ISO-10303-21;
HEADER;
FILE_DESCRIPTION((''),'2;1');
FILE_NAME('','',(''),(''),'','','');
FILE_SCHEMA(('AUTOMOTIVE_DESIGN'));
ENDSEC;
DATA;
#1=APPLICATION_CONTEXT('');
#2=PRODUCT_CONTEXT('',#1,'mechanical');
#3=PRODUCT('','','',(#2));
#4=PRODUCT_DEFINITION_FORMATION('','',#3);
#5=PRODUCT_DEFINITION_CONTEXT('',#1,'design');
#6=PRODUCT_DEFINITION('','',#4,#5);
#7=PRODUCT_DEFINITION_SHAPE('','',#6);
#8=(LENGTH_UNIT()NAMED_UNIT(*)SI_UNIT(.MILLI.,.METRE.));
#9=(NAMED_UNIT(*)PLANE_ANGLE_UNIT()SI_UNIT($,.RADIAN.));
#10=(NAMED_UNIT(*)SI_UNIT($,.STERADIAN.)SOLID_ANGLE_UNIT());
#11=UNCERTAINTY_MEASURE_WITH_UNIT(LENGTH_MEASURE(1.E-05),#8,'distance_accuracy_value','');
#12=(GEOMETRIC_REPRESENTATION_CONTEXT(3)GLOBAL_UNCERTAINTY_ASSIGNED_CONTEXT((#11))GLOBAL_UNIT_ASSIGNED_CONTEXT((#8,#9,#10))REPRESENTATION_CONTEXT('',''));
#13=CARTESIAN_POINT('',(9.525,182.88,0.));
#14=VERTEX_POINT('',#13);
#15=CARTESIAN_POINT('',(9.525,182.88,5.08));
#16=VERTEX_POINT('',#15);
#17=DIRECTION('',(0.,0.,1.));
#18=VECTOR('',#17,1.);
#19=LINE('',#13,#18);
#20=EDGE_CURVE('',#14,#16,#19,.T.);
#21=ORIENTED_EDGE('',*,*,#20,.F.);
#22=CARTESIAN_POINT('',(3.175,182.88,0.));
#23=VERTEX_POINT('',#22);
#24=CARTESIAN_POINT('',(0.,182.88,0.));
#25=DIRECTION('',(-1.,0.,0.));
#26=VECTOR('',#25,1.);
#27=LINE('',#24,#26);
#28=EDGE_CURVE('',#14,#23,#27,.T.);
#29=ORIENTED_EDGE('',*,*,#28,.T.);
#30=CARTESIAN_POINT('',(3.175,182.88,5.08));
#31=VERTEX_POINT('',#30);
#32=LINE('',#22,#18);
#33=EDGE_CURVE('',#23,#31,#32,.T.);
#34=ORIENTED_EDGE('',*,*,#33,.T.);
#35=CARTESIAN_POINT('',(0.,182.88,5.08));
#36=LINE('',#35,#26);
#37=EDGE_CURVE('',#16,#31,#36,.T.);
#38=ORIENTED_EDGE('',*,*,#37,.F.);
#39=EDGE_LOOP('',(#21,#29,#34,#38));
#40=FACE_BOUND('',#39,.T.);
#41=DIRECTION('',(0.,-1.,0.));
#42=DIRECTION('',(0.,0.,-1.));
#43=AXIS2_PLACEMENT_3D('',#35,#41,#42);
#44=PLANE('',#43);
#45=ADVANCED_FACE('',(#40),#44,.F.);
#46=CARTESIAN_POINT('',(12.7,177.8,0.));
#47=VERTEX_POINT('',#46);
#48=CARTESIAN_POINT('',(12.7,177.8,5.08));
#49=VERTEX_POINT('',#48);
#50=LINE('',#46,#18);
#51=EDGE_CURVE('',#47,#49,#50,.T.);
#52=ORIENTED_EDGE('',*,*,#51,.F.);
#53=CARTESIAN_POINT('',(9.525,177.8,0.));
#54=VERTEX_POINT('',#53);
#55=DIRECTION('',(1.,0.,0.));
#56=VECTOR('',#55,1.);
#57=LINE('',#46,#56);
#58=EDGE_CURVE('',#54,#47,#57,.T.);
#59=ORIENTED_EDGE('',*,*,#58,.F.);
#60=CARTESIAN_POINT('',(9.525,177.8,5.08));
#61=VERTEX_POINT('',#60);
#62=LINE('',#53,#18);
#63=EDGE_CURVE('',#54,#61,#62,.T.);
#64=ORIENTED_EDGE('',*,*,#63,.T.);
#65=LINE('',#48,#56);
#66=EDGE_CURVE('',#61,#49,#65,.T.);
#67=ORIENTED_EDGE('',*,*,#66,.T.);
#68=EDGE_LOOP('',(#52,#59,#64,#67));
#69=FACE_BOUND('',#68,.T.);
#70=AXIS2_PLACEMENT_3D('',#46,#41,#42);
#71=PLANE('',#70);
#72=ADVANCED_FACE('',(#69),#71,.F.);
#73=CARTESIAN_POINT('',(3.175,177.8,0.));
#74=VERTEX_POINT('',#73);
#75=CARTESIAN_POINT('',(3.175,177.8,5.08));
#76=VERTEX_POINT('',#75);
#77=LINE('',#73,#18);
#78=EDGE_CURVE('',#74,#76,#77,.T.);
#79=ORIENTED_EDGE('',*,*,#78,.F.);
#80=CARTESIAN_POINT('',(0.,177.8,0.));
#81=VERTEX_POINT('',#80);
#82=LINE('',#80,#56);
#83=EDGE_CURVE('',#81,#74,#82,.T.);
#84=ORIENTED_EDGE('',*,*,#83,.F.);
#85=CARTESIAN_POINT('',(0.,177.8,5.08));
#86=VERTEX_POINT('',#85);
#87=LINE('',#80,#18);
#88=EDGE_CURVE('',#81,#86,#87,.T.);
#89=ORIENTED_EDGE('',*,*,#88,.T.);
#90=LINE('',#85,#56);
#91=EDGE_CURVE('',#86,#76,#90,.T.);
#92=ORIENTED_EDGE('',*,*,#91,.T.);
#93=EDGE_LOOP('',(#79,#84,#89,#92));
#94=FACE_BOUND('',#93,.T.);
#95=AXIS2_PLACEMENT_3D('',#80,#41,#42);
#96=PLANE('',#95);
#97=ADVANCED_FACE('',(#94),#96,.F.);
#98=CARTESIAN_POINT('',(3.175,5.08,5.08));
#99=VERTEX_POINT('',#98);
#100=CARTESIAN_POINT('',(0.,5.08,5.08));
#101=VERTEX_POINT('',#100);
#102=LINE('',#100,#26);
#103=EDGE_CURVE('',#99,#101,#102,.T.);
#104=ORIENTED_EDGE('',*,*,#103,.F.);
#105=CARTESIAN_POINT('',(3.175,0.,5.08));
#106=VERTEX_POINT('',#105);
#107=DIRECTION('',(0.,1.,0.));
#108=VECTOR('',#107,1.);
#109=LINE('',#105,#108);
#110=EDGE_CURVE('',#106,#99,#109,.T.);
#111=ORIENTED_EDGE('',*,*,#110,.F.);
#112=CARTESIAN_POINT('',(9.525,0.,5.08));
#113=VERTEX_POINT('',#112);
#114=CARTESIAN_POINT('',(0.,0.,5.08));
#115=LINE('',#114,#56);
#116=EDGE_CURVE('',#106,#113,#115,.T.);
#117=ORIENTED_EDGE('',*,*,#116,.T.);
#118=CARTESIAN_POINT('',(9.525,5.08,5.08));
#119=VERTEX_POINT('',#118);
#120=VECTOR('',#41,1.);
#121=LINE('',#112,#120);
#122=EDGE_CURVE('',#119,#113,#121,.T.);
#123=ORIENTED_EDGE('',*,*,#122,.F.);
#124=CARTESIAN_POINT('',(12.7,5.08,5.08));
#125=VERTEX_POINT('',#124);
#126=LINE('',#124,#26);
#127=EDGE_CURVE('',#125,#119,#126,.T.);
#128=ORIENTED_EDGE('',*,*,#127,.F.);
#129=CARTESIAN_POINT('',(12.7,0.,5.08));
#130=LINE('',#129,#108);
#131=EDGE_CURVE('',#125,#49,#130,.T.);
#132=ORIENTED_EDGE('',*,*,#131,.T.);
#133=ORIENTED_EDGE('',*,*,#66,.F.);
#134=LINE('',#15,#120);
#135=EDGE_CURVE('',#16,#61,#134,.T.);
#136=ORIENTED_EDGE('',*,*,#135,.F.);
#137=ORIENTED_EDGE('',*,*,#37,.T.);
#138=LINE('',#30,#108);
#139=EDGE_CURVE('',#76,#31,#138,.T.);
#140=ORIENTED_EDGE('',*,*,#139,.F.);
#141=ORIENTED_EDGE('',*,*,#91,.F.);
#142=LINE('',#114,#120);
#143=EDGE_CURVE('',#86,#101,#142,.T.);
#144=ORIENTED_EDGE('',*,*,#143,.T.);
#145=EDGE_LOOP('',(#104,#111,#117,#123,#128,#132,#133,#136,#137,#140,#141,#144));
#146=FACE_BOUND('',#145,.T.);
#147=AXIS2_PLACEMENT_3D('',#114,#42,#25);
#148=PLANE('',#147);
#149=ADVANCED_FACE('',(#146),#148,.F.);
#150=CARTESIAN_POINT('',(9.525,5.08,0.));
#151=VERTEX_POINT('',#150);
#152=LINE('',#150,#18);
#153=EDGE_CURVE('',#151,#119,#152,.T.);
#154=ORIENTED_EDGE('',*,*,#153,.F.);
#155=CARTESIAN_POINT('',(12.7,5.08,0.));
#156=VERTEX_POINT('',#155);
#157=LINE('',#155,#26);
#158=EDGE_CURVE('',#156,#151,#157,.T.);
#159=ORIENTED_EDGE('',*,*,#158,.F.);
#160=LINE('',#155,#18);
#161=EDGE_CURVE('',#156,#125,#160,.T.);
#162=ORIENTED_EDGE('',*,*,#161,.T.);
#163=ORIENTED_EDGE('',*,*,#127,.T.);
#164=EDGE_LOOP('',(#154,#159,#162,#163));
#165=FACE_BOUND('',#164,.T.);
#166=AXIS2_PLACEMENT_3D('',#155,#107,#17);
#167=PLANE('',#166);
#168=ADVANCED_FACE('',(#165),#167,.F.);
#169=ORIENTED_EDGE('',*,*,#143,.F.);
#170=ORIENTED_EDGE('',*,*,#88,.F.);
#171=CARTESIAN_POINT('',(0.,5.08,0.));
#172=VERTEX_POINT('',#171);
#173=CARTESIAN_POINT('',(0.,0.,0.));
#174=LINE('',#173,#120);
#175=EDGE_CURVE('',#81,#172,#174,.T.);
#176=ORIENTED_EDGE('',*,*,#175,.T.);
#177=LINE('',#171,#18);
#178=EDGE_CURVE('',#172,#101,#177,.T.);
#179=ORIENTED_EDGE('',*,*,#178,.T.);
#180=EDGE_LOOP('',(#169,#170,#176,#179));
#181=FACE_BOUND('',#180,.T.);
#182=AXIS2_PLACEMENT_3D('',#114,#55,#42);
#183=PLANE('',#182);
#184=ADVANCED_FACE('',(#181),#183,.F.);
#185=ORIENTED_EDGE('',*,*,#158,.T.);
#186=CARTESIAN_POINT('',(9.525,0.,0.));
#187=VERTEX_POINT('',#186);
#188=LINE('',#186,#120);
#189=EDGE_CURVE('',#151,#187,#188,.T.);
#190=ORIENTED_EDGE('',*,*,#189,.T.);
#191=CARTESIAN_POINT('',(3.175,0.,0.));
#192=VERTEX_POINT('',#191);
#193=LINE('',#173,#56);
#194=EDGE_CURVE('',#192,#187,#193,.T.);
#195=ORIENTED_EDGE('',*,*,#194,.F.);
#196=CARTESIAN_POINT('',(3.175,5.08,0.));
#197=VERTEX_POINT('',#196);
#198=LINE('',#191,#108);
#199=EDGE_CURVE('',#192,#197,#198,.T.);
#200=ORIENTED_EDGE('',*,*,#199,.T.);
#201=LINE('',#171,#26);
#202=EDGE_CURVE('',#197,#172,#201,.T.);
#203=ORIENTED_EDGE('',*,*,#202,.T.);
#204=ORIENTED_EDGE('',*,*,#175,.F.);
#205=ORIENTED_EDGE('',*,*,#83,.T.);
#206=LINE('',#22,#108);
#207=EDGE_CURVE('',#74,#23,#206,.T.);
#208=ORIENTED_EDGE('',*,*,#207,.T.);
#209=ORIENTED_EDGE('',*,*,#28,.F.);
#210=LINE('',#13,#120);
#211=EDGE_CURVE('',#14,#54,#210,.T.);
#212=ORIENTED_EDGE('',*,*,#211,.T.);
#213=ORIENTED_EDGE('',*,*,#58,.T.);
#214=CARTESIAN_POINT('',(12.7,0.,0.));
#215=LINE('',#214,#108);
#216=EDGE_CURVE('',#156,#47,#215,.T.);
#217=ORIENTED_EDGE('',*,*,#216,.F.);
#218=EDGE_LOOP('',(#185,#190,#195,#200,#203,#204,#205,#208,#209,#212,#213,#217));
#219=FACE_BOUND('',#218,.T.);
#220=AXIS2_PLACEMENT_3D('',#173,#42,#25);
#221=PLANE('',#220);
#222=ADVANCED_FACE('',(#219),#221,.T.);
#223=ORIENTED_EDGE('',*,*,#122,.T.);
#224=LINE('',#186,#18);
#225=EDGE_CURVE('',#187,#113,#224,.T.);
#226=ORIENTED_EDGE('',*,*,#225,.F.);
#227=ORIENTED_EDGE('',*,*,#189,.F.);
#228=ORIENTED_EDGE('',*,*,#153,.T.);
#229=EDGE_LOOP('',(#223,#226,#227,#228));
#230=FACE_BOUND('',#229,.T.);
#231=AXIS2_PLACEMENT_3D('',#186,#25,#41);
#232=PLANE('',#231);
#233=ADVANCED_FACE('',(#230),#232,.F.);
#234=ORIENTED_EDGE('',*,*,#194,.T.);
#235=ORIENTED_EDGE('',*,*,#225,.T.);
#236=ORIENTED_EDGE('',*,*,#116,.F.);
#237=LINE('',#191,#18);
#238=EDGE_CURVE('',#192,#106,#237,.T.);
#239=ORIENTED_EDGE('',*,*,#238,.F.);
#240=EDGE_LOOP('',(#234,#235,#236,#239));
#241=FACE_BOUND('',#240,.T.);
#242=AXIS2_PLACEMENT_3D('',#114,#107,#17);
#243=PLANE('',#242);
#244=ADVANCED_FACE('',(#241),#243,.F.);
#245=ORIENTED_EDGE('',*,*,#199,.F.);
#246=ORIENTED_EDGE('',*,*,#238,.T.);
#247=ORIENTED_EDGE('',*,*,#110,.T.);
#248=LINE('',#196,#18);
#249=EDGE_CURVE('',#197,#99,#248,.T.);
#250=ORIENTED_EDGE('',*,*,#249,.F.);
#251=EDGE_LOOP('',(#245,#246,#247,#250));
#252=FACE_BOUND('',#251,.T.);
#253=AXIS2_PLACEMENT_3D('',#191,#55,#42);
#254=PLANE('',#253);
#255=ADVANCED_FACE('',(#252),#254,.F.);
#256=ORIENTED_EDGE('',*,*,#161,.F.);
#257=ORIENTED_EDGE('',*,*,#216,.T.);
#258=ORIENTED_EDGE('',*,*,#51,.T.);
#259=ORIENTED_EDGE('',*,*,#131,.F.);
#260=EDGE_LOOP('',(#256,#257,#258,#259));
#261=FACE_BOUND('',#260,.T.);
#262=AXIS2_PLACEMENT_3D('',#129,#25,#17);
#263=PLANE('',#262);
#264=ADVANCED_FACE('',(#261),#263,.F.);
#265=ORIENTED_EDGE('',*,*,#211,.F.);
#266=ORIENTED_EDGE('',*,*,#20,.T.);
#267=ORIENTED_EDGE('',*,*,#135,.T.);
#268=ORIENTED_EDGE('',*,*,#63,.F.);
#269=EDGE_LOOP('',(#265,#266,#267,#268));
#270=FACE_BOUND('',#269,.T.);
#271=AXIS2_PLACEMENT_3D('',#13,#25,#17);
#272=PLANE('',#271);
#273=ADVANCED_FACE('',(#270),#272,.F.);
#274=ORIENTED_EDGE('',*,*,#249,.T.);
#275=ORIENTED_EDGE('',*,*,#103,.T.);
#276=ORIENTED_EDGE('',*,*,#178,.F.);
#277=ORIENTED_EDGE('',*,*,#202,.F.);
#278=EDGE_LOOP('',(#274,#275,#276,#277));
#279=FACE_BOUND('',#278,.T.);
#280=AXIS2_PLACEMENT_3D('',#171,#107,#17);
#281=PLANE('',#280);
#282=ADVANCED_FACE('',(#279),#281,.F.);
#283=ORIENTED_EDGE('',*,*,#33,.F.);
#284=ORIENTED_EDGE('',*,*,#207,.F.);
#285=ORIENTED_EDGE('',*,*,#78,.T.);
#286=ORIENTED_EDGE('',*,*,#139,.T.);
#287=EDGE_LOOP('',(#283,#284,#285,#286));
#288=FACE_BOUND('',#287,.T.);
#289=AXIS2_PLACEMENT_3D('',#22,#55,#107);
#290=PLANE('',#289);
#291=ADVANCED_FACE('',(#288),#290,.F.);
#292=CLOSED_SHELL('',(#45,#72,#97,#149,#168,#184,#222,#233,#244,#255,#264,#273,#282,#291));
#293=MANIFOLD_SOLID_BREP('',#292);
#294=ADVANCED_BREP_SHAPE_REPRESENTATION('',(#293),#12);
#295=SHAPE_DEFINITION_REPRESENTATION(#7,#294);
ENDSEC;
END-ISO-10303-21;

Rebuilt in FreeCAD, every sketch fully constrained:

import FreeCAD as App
import Part
import Sketcher
from FreeCAD import Vector
Q = App.Units.Quantity

doc = App.newDocument("Part")
body = doc.addObject("PartDesign::Body", "Body")

sketch1 = body.newObject("Sketcher::SketchObject", "Sketch")
sketch1.AttachmentSupport = (doc.getObject("XY_Plane"), [""])
sketch1.MapMode = "FlatFace"
sketch1.addGeometry([
    Part.LineSegment(Vector(0, 183, 0), Vector(0, 0, 0)),
    Part.LineSegment(Vector(0, 0, 0), Vector(13, 0, 0)),
    Part.LineSegment(Vector(13, 0, 0), Vector(13, 183, 0)),
    Part.LineSegment(Vector(13, 183, 0), Vector(0, 183, 0)),
], False)
sketch1.addConstraint([
    Sketcher.Constraint("Coincident", 0, 2, 1, 1),
    Sketcher.Constraint("Coincident", 1, 2, 2, 1),
    Sketcher.Constraint("Coincident", 2, 2, 3, 1),
    Sketcher.Constraint("Coincident", 3, 2, 0, 1),
    Sketcher.Constraint("Vertical", 0),
    Sketcher.Constraint("Horizontal", 1),
    Sketcher.Constraint("Vertical", 2),
    Sketcher.Constraint("Horizontal", 3),
    Sketcher.Constraint("Coincident", 0, 2, -1, 1),
    Sketcher.Constraint("DistanceX", 1, 1, 1, 2, Q("0.5 in")),
    Sketcher.Constraint("DistanceY", 0, 2, 0, 1, Q("7.2 in")),
])
pad1 = body.newObject("PartDesign::Pad", "Pad")
pad1.Profile = sketch1
pad1.Length = Q("0.2 in")

sketch2 = body.newObject("Sketcher::SketchObject", "Sketch001")
sketch2.AttachmentSupport = (doc.getObject("XY_Plane"), [""])
sketch2.MapMode = "FlatFace"
sketch2.AttachmentOffset = App.Placement(Vector(0, 0, 0.2 * 25.4), App.Rotation())
sketch2.addGeometry([
    Part.LineSegment(Vector(0, 182.9, 0), Vector(0, 177.8, 0)),
    Part.LineSegment(Vector(0, 177.8, 0), Vector(3.2, 177.8, 0)),
    Part.LineSegment(Vector(3.2, 177.8, 0), Vector(3.2, 182.9, 0)),
    Part.LineSegment(Vector(3.2, 182.9, 0), Vector(0, 182.9, 0)),
    Part.LineSegment(Vector(9.5, 182.9, 0), Vector(9.5, 177.8, 0)),
    Part.LineSegment(Vector(9.5, 177.8, 0), Vector(12.7, 177.8, 0)),
    Part.LineSegment(Vector(12.7, 177.8, 0), Vector(12.7, 182.9, 0)),
    Part.LineSegment(Vector(12.7, 182.9, 0), Vector(9.5, 182.9, 0)),
    Part.LineSegment(Vector(0, 5.1, 0), Vector(0, 0, 0)),
    Part.LineSegment(Vector(0, 0, 0), Vector(3.2, 0, 0)),
    Part.LineSegment(Vector(3.2, 0, 0), Vector(3.2, 5.1, 0)),
    Part.LineSegment(Vector(3.2, 5.1, 0), Vector(0, 5.1, 0)),
    Part.LineSegment(Vector(9.5, 5.1, 0), Vector(9.5, 0, 0)),
    Part.LineSegment(Vector(9.5, 0, 0), Vector(12.7, 0, 0)),
    Part.LineSegment(Vector(12.7, 0, 0), Vector(12.7, 5.1, 0)),
    Part.LineSegment(Vector(12.7, 5.1, 0), Vector(9.5, 5.1, 0)),
], False)
sketch2.addConstraint([
    Sketcher.Constraint("Coincident", 0, 2, 1, 1),
    Sketcher.Constraint("Coincident", 1, 2, 2, 1),
    Sketcher.Constraint("Coincident", 2, 2, 3, 1),
    Sketcher.Constraint("Coincident", 3, 2, 0, 1),
    Sketcher.Constraint("Coincident", 4, 2, 5, 1),
    Sketcher.Constraint("Coincident", 5, 2, 6, 1),
    Sketcher.Constraint("Coincident", 6, 2, 7, 1),
    Sketcher.Constraint("Coincident", 7, 2, 4, 1),
    Sketcher.Constraint("Coincident", 8, 2, 9, 1),
    Sketcher.Constraint("Coincident", 9, 2, 10, 1),
    Sketcher.Constraint("Coincident", 10, 2, 11, 1),
    Sketcher.Constraint("Coincident", 11, 2, 8, 1),
    Sketcher.Constraint("Coincident", 12, 2, 13, 1),
    Sketcher.Constraint("Coincident", 13, 2, 14, 1),
    Sketcher.Constraint("Coincident", 14, 2, 15, 1),
    Sketcher.Constraint("Coincident", 15, 2, 12, 1),
    Sketcher.Constraint("Vertical", 0),
    Sketcher.Constraint("Horizontal", 1),
    Sketcher.Constraint("Vertical", 2),
    Sketcher.Constraint("Horizontal", 3),
    Sketcher.Constraint("Vertical", 4),
    Sketcher.Constraint("Horizontal", 5),
    Sketcher.Constraint("Vertical", 6),
    Sketcher.Constraint("Horizontal", 7),
    Sketcher.Constraint("Vertical", 8),
    Sketcher.Constraint("Horizontal", 9),
    Sketcher.Constraint("Vertical", 10),
    Sketcher.Constraint("Horizontal", 11),
    Sketcher.Constraint("Vertical", 12),
    Sketcher.Constraint("Horizontal", 13),
    Sketcher.Constraint("Vertical", 14),
    Sketcher.Constraint("Horizontal", 15),
    Sketcher.Constraint("Coincident", 8, 2, -1, 1),
    Sketcher.Constraint("PointOnObject", 0, 2, -2),
    Sketcher.Constraint("PointOnObject", 12, 2, -1),
    Sketcher.Constraint("Horizontal", 1, 2, 4, 2),
    Sketcher.Constraint("Horizontal", 3, 2, 6, 2),
    Sketcher.Constraint("Horizontal", 11, 2, 14, 2),
    Sketcher.Constraint("Vertical", 2, 2, 9, 2),
    Sketcher.Constraint("Vertical", 7, 2, 12, 2),
    Sketcher.Constraint("Vertical", 6, 2, 13, 2),
    Sketcher.Constraint("Equal", 3, 5),
    Sketcher.Constraint("Equal", 6, 8),
    Sketcher.Constraint("DistanceY", 0, 2, 0, 1, Q("0.2 in")),
    Sketcher.Constraint("DistanceY", -1, 1, 0, 2, Q("7 in")),
    Sketcher.Constraint("DistanceX", -1, 1, 5, 2, Q("0.5 in")),
    Sketcher.Constraint("DistanceX", 1, 1, 1, 2, Q("0.125 in")),
])
pocket1 = body.newObject("PartDesign::Pocket", "Pocket")
pocket1.Profile = sketch2
pocket1.Type = "ThroughAll"

doc.recompute()
